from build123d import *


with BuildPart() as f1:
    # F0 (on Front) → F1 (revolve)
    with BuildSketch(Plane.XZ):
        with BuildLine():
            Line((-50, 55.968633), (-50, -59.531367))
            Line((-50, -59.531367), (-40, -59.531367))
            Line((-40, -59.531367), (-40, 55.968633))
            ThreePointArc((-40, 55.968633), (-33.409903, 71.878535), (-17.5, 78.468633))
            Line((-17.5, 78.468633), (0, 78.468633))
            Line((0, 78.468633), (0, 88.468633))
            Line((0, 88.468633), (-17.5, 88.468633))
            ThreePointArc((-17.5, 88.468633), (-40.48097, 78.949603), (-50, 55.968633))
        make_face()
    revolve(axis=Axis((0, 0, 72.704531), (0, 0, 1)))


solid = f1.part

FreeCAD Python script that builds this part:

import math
import FreeCAD as App
import Part
import Sketcher
Q = App.Units.Quantity

doc = App.newDocument("Part")
body = doc.addObject("PartDesign::Body", "Body")

# Sketch on XZ plane
sketch1 = body.newObject("Sketcher::SketchObject", "Sketch")
sketch1.AttachmentSupport = (doc.getObject("XZ_Plane"), [""])
sketch1.MapMode = "FlatFace"
sketch1.addGeometry([
    Part.LineSegment(App.Vector(-50, 56, 0), App.Vector(-50, -60, 0)),  # 0
    Part.LineSegment(App.Vector(-50, -60, 0), App.Vector(-40, -60, 0)),  # 1
    Part.LineSegment(App.Vector(-40, -60, 0), App.Vector(-40, 56, 0)),  # 2
    Part.ArcOfCircle(Part.Circle(App.Vector(-17, 56, 0), App.Vector(0, 0, 1), 23), math.radians(90), math.radians(180)),  # 3
    Part.LineSegment(App.Vector(-18, 78, 0), App.Vector(0, 78, 0)),  # 4
    Part.LineSegment(App.Vector(0, 78, 0), App.Vector(0, 88, 0)),  # 5
    Part.LineSegment(App.Vector(0, 88, 0), App.Vector(-18, 88, 0)),  # 6
    Part.ArcOfCircle(Part.Circle(App.Vector(-17, 56, 0), App.Vector(0, 0, 1), 33), math.radians(90), math.radians(180)),  # 7
], False)
sketch1.addConstraint([
    Sketcher.Constraint("Coincident", 0, 2, 1, 1),
    Sketcher.Constraint("Coincident", 1, 2, 2, 1),
    Sketcher.Constraint("Tangent", 2, 2, 3, 2),
    Sketcher.Constraint("Tangent", 3, 1, 4, 1),
    Sketcher.Constraint("Coincident", 4, 2, 5, 1),
    Sketcher.Constraint("Coincident", 5, 2, 6, 1),
    Sketcher.Constraint("Tangent", 6, 2, 7, 1),
    Sketcher.Constraint("Tangent", 7, 2, 0, 1),
    Sketcher.Constraint("Vertical", 0),
    Sketcher.Constraint("Horizontal", 1),
    Sketcher.Constraint("Vertical", 2),
    Sketcher.Constraint("Horizontal", 4),
    Sketcher.Constraint("Vertical", 5),
    Sketcher.Constraint("Horizontal", 6),
    Sketcher.Constraint("Coincident", 7, 3, 3, 3),
    Sketcher.Constraint("PointOnObject", 4, 2, -2),
    Sketcher.Constraint("Radius", 3, Q("22.5 mm")),
    Sketcher.Constraint("Radius", 7, Q("32.500001 mm")),
    Sketcher.Constraint("DistanceX", 4, 1, 4, 2, Q("17.5 mm")),
    Sketcher.Constraint("DistanceY", 0, 2, 0, 1, Q("115.5 mm")),
    Sketcher.Constraint("DistanceY", -1, 1, 7, 3, Q("55.968632 mm")),
])
revolution = body.newObject("PartDesign::Revolution", "Revolution")
revolution.Profile = sketch1
revolution.ReferenceAxis = (sketch1, ["V_Axis"])
revolution.Angle = 360

doc.recompute()
